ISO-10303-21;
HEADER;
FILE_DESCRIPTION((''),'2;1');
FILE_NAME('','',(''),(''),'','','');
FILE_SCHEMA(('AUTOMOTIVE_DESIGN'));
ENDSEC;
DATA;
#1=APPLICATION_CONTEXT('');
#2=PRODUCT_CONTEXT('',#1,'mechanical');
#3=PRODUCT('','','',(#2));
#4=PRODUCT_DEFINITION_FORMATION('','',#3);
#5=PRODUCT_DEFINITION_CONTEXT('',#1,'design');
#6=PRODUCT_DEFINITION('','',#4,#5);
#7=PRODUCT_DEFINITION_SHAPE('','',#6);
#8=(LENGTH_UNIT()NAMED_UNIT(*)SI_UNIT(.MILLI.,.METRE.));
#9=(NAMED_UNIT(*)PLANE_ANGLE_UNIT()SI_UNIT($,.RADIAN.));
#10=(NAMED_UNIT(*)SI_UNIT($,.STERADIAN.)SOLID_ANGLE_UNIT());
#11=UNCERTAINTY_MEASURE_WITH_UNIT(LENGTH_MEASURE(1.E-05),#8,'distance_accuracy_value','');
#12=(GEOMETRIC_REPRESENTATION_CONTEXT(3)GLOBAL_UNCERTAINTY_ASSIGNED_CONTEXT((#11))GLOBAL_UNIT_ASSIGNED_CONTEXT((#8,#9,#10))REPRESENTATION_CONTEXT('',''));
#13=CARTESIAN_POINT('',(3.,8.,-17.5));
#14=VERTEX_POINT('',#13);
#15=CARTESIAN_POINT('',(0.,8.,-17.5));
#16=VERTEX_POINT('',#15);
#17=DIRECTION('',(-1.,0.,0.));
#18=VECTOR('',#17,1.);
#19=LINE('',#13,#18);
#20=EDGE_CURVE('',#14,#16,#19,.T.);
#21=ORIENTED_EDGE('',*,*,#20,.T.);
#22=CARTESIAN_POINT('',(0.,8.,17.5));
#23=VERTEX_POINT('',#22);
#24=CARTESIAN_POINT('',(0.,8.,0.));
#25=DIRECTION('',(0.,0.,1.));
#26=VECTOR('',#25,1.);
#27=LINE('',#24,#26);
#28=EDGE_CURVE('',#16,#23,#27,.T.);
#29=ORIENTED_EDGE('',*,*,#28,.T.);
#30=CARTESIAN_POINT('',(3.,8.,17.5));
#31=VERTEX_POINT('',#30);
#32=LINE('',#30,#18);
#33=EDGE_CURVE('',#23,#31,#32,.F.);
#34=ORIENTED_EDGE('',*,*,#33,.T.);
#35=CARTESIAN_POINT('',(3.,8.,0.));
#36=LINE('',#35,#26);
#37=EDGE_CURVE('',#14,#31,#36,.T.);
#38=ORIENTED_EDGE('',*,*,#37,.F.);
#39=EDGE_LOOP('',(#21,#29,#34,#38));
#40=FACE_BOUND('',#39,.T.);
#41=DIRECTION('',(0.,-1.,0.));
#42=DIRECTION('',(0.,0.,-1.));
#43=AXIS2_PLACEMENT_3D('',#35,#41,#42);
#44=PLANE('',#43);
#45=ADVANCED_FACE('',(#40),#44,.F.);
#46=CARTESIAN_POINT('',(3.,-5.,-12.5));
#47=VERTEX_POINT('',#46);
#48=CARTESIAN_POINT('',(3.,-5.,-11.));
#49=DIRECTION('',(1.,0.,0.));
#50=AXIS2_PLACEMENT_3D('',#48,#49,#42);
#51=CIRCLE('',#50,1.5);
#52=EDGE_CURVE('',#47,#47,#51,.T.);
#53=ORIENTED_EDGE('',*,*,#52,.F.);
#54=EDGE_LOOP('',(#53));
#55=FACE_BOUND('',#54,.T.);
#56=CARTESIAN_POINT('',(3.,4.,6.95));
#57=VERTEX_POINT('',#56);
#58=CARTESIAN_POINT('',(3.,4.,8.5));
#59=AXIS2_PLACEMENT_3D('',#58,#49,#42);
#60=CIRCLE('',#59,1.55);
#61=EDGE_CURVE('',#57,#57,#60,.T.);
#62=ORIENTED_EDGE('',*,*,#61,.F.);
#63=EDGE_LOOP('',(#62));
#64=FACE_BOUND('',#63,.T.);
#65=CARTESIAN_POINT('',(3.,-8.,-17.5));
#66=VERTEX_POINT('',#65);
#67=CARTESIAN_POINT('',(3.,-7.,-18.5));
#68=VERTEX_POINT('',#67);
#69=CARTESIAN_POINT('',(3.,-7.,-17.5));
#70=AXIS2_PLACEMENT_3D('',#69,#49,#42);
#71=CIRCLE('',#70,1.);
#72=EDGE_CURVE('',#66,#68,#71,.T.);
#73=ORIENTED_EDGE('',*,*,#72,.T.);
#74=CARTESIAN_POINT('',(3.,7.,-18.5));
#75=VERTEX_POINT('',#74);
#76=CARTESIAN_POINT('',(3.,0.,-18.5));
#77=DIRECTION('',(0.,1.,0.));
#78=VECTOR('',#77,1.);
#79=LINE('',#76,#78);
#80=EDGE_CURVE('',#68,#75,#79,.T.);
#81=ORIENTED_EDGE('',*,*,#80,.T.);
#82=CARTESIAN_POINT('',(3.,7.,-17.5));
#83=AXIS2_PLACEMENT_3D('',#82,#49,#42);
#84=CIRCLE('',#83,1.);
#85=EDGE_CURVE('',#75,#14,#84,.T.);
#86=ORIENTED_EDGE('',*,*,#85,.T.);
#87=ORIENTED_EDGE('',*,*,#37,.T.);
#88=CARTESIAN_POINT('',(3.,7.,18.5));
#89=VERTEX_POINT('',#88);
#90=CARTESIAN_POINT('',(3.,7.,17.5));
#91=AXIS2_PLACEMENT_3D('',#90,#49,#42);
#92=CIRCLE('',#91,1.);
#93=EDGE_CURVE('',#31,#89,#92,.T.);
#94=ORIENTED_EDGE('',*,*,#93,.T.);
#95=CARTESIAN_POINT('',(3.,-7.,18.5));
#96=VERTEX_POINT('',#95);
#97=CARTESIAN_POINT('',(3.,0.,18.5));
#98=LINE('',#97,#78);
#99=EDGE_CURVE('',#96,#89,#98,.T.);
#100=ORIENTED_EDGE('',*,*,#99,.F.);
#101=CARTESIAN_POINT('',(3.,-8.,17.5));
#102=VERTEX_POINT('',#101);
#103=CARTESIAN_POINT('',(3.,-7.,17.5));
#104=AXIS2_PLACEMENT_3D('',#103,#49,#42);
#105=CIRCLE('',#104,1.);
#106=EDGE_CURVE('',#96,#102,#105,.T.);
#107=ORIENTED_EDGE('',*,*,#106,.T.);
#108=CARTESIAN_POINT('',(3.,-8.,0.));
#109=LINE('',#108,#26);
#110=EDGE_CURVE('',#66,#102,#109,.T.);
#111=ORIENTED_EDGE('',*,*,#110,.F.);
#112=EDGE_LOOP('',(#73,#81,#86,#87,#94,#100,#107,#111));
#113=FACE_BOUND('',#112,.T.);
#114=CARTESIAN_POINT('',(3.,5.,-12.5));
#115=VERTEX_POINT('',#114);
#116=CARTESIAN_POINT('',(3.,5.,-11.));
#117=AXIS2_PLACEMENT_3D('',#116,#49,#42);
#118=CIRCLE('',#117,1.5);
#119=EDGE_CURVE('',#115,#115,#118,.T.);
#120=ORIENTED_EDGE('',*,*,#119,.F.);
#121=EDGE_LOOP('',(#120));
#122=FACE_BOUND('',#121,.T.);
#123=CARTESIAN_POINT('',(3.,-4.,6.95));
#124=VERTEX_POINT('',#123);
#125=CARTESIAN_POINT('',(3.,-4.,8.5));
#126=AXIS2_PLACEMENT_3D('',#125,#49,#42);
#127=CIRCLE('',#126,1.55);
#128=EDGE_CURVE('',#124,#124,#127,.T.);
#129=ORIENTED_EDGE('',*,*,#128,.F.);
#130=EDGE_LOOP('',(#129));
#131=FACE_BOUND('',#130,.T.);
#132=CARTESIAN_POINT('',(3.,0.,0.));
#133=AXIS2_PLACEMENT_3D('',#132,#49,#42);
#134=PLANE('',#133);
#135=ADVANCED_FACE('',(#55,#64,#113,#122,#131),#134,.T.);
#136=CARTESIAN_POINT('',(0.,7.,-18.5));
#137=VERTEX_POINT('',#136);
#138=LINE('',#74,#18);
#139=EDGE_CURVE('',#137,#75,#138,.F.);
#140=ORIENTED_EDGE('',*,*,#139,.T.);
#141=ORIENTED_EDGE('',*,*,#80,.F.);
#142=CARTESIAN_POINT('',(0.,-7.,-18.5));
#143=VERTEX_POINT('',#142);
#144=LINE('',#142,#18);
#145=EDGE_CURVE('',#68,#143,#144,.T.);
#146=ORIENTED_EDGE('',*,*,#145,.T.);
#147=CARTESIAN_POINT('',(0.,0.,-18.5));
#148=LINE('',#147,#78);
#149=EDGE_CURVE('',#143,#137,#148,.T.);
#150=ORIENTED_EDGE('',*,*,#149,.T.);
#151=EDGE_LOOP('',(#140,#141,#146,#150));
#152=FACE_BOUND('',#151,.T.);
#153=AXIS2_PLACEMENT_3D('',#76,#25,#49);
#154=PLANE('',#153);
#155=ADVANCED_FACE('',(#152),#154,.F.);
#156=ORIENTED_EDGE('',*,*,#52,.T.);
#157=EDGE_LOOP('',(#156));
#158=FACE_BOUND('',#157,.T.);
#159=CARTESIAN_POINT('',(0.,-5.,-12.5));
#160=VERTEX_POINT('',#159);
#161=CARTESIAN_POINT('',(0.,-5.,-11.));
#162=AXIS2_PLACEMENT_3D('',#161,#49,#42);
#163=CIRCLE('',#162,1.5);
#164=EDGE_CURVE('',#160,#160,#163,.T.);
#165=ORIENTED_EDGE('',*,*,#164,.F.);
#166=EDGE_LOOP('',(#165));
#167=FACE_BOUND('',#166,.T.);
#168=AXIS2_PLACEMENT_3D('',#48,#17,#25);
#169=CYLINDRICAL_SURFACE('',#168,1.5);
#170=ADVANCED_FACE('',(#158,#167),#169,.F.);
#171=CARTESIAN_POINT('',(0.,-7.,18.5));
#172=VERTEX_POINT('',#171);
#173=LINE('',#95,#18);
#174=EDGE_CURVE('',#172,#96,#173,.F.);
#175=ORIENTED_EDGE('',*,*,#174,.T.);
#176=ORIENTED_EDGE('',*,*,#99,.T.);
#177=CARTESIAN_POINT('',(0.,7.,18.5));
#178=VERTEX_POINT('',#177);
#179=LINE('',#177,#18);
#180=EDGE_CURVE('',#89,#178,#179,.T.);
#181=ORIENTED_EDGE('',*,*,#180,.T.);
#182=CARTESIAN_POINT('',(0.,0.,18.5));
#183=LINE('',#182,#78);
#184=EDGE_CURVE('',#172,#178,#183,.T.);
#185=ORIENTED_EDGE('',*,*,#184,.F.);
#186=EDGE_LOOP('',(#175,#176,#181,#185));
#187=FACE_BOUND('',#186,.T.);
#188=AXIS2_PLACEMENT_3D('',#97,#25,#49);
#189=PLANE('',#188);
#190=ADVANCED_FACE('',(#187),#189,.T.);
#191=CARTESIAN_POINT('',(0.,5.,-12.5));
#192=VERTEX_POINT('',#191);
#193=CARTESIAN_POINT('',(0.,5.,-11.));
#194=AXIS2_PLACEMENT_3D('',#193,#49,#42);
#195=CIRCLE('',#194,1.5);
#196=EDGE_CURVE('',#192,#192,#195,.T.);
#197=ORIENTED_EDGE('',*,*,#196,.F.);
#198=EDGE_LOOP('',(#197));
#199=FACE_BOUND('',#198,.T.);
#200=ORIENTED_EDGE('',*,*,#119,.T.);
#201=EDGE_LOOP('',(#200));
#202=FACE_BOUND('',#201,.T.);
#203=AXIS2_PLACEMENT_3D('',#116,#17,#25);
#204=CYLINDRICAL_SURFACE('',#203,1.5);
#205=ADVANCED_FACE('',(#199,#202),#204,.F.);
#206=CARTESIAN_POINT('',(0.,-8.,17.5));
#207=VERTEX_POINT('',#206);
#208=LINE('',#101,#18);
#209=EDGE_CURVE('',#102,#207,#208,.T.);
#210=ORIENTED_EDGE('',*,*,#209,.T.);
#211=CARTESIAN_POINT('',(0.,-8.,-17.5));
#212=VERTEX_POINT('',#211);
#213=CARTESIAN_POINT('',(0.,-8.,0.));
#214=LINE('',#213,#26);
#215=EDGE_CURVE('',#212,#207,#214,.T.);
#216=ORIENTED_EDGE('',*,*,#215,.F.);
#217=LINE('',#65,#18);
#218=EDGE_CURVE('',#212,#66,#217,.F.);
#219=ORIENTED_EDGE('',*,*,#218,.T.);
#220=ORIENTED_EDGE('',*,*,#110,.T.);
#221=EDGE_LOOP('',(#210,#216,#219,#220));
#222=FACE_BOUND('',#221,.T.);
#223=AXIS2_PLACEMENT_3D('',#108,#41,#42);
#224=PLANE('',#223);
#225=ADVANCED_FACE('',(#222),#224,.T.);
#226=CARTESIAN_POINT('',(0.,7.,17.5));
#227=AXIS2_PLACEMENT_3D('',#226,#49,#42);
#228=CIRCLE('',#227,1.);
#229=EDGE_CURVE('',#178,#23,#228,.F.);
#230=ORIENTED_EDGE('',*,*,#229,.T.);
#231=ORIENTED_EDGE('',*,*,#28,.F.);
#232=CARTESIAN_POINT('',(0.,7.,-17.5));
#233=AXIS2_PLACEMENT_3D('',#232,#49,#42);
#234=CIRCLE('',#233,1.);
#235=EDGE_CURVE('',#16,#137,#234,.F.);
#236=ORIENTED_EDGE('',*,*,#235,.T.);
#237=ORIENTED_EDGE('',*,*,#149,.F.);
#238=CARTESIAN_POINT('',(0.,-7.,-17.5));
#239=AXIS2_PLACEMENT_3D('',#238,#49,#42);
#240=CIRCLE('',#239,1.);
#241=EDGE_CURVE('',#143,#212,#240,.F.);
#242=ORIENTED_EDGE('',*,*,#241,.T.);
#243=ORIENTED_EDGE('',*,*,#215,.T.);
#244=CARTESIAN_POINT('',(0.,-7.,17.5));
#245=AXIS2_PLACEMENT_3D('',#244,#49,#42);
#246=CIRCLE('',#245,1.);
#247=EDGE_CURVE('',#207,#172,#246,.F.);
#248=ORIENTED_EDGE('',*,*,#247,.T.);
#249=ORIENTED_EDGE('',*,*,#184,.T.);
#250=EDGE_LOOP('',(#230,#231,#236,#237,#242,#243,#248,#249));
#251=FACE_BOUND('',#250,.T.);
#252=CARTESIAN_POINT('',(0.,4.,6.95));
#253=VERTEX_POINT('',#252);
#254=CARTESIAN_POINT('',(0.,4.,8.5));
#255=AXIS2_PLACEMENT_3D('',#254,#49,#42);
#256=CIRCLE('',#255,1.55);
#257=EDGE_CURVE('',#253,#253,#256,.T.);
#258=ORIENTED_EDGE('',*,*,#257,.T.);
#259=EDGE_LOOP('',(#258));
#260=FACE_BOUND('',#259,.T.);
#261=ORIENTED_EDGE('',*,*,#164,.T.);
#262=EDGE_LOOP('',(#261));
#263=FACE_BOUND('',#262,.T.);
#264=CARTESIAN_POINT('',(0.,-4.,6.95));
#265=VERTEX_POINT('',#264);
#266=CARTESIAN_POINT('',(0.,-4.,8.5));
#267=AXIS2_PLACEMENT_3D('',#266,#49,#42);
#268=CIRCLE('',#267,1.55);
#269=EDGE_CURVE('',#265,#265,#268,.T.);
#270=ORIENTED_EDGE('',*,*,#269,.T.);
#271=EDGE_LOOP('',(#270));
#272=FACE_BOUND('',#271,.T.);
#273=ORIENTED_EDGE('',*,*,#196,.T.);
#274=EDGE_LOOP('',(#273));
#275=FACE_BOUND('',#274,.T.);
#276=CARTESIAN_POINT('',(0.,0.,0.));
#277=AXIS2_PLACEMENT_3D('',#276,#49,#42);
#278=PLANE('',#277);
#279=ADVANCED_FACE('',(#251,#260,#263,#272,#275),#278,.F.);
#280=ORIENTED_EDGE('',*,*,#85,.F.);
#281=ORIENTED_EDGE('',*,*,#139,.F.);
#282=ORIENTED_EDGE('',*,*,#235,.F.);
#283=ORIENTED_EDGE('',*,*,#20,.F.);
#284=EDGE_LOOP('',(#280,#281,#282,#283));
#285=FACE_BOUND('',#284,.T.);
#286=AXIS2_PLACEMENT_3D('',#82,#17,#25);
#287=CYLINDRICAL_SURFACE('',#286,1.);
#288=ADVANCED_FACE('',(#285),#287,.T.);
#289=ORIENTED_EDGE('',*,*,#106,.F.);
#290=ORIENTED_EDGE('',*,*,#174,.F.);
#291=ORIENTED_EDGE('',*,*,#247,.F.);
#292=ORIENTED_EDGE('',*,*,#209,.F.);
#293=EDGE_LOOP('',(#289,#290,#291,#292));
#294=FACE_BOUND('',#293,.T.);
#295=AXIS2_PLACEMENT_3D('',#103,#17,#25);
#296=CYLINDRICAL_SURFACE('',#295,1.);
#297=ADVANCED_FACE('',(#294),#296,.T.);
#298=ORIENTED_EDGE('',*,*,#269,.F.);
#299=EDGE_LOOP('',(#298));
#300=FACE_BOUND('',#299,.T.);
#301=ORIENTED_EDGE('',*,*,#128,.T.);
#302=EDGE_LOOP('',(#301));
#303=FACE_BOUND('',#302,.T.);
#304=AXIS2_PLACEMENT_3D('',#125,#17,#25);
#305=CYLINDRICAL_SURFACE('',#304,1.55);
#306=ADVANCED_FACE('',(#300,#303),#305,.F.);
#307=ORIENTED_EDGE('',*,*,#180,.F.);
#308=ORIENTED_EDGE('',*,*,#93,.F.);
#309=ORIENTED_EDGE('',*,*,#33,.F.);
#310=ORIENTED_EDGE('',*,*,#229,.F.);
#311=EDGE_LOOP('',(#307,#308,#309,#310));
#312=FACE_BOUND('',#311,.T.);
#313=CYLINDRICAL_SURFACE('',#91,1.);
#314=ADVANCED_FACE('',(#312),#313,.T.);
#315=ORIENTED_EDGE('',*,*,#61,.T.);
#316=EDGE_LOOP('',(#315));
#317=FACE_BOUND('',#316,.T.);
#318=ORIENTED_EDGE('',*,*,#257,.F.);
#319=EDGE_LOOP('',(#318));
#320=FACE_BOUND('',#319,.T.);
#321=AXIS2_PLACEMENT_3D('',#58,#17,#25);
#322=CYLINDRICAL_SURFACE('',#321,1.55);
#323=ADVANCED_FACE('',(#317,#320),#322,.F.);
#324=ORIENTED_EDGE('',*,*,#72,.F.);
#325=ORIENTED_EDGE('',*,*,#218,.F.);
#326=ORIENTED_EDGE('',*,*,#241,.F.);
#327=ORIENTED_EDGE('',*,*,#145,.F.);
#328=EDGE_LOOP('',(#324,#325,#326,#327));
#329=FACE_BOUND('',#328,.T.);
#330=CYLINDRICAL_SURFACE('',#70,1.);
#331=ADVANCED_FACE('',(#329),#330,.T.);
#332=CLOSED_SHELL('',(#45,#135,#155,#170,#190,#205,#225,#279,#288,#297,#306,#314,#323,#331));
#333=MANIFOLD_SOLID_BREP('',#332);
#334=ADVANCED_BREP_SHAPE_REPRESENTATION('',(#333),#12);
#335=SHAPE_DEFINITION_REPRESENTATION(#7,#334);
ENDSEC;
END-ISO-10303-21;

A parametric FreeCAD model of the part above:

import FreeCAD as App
import Part
import Sketcher

V = App.Vector


def edges_at(feature, points):
    """Names of the edges that pass closest to the given points."""
    edges = feature.Shape.Edges
    near = lambda p: min(range(len(edges)), key=lambda i: edges[i].distToShape(Part.Vertex(*p))[0])
    return sorted({f"Edge{near(p) + 1}" for p in points})


def add_polygon(sketch, points):
    """Adds a closed chain of lines whose ends are joined by coincident constraints."""
    first, n = sketch.GeometryCount, len(points)
    for a, b in zip(points, points[1:] + points[:1]):
        sketch.addGeometry(Part.LineSegment(App.Vector(*a, 0), App.Vector(*b, 0)), False)
    for i in range(n):
        sketch.addConstraint(Sketcher.Constraint("Coincident", first + i, 2, first + (i + 1) % n, 1))

doc = App.newDocument("Part")
body = doc.addObject("PartDesign::Body", "Body")

# Sketch on YZ plane
sketch1 = body.newObject("Sketcher::SketchObject", "Sketch")
sketch1.AttachmentSupport = (doc.getObject("YZ_Plane"), [""])
sketch1.MapMode = "FlatFace"
add_polygon(sketch1, [(8, 18.5), (-8, 18.5), (-8, -18.5), (8, -18.5)])  # lines 0-3
sketch1.addGeometry(Part.Circle(V(-4, 8.5, 0), V(0, 0, 1), 1.6), False)  # 4
sketch1.addGeometry(Part.Circle(V(-5, -11, 0), V(0, 0, 1), 1.5), False)  # 5
sketch1.addGeometry(Part.Circle(V(4, 8.5, 0), V(0, 0, 1), 1.6), False)  # 6
sketch1.addGeometry(Part.Circle(V(5, -11, 0), V(0, 0, 1), 1.5), False)  # 7
sketch1.addConstraint(Sketcher.Constraint("Horizontal", 0))
sketch1.addConstraint(Sketcher.Constraint("Vertical", 1))
sketch1.addConstraint(Sketcher.Constraint("Horizontal", 2))
sketch1.addConstraint(Sketcher.Constraint("Vertical", 3))
sketch1.addConstraint(Sketcher.Constraint("Equal", 4, 6))
sketch1.addConstraint(Sketcher.Constraint("Equal", 5, 7))
sketch1.addConstraint(Sketcher.Constraint("Symmetric", 0, 2, 2, 2, -1, 1))
sketch1.addConstraint(Sketcher.Constraint("Symmetric", 4, 3, 6, 3, -2))
sketch1.addConstraint(Sketcher.Constraint("Symmetric", 5, 3, 7, 3, -2))
sketch1.addConstraint(Sketcher.Constraint("Diameter", 5, 3.0))
sketch1.addConstraint(Sketcher.Constraint("Diameter", 4, 3.1))
sketch1.addConstraint(Sketcher.Constraint("DistanceX", 0, 2, 0, 1, 16.0))
sketch1.addConstraint(Sketcher.Constraint("DistanceY", 1, 2, 1, 1, 37.0))
sketch1.addConstraint(Sketcher.Constraint("DistanceX", 4, 3, -1, 1, 4.0))
sketch1.addConstraint(Sketcher.Constraint("DistanceX", 5, 3, -1, 1, 5.0))
sketch1.addConstraint(Sketcher.Constraint("DistanceY", 5, 3, -1, 1, 11.0))
sketch1.addConstraint(Sketcher.Constraint("DistanceY", 4, 3, 0, 2, 10.0))
pad1 = body.newObject("PartDesign::Pad", "Pad")
pad1.Profile = sketch1
pad1.Length = 3
doc.recompute()

fillet = body.newObject("PartDesign::Fillet", "Fillet")
fillet.Base = (pad1, edges_at(pad1, [
    (1.5, 8, 18.5),
    (1.5, 8, -18.5),
    (1.5, -8, -18.5),
    (1.5, -8, 18.5),
]))
fillet.Radius = 1

doc.recompute()
